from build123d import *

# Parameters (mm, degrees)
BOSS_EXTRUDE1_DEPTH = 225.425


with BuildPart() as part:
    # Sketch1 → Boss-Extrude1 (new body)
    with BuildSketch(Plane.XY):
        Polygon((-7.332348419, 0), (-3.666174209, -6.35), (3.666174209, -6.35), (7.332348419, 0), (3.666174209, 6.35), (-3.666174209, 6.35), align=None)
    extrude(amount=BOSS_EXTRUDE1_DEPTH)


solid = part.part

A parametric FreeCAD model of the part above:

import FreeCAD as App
import Part
import Sketcher
Q = App.Units.Quantity


def add_polygon(sketch, points):
    """Adds a closed chain of lines whose ends are joined by coincident constraints."""
    first, n = sketch.GeometryCount, len(points)
    for a, b in zip(points, points[1:] + points[:1]):
        sketch.addGeometry(Part.LineSegment(App.Vector(*a, 0), App.Vector(*b, 0)), False)
    for i in range(n):
        sketch.addConstraint(Sketcher.Constraint("Coincident", first + i, 2, first + (i + 1) % n, 1))

doc = App.newDocument("Part")
body = doc.addObject("PartDesign::Body", "Body")

sketch1 = body.newObject("Sketcher::SketchObject", "Sketch")
sketch1.AttachmentSupport = (doc.getObject("XY_Plane"), [""])
sketch1.MapMode = "FlatFace"
add_polygon(sketch1, [(-7.332348, 0), (-3.666174, -6.35), (3.666174, -6.35), (7.332348, 0), (3.666174, 6.35), (-3.666174, 6.35)])
sketch1.addConstraint([
    Sketcher.Constraint("Horizontal", 1),
    Sketcher.Constraint("Horizontal", 4),
    Sketcher.Constraint("Symmetric", 0, 2, 3, 2, -1, 1),
    Sketcher.Constraint("Symmetric", 2, 2, 5, 2, -1, 1),
    Sketcher.Constraint("PointOnObject", 2, 2, -1),
    Sketcher.Constraint("Parallel", 2, 5),
    Sketcher.Constraint("Vertical", 1, 2, 3, 2),
    Sketcher.Constraint("Angle", 0, Q("-60 deg")),
    Sketcher.Constraint("DistanceY", 1, 2, 3, 2, Q("0.5 in")),
    Sketcher.Constraint("DistanceX", 1, 1, 1, 2, 7.332348),
])
pad1 = body.newObject("PartDesign::Pad", "Pad")
pad1.Profile = sketch1
pad1.Length = Q("8.875 in")

doc.recompute()
